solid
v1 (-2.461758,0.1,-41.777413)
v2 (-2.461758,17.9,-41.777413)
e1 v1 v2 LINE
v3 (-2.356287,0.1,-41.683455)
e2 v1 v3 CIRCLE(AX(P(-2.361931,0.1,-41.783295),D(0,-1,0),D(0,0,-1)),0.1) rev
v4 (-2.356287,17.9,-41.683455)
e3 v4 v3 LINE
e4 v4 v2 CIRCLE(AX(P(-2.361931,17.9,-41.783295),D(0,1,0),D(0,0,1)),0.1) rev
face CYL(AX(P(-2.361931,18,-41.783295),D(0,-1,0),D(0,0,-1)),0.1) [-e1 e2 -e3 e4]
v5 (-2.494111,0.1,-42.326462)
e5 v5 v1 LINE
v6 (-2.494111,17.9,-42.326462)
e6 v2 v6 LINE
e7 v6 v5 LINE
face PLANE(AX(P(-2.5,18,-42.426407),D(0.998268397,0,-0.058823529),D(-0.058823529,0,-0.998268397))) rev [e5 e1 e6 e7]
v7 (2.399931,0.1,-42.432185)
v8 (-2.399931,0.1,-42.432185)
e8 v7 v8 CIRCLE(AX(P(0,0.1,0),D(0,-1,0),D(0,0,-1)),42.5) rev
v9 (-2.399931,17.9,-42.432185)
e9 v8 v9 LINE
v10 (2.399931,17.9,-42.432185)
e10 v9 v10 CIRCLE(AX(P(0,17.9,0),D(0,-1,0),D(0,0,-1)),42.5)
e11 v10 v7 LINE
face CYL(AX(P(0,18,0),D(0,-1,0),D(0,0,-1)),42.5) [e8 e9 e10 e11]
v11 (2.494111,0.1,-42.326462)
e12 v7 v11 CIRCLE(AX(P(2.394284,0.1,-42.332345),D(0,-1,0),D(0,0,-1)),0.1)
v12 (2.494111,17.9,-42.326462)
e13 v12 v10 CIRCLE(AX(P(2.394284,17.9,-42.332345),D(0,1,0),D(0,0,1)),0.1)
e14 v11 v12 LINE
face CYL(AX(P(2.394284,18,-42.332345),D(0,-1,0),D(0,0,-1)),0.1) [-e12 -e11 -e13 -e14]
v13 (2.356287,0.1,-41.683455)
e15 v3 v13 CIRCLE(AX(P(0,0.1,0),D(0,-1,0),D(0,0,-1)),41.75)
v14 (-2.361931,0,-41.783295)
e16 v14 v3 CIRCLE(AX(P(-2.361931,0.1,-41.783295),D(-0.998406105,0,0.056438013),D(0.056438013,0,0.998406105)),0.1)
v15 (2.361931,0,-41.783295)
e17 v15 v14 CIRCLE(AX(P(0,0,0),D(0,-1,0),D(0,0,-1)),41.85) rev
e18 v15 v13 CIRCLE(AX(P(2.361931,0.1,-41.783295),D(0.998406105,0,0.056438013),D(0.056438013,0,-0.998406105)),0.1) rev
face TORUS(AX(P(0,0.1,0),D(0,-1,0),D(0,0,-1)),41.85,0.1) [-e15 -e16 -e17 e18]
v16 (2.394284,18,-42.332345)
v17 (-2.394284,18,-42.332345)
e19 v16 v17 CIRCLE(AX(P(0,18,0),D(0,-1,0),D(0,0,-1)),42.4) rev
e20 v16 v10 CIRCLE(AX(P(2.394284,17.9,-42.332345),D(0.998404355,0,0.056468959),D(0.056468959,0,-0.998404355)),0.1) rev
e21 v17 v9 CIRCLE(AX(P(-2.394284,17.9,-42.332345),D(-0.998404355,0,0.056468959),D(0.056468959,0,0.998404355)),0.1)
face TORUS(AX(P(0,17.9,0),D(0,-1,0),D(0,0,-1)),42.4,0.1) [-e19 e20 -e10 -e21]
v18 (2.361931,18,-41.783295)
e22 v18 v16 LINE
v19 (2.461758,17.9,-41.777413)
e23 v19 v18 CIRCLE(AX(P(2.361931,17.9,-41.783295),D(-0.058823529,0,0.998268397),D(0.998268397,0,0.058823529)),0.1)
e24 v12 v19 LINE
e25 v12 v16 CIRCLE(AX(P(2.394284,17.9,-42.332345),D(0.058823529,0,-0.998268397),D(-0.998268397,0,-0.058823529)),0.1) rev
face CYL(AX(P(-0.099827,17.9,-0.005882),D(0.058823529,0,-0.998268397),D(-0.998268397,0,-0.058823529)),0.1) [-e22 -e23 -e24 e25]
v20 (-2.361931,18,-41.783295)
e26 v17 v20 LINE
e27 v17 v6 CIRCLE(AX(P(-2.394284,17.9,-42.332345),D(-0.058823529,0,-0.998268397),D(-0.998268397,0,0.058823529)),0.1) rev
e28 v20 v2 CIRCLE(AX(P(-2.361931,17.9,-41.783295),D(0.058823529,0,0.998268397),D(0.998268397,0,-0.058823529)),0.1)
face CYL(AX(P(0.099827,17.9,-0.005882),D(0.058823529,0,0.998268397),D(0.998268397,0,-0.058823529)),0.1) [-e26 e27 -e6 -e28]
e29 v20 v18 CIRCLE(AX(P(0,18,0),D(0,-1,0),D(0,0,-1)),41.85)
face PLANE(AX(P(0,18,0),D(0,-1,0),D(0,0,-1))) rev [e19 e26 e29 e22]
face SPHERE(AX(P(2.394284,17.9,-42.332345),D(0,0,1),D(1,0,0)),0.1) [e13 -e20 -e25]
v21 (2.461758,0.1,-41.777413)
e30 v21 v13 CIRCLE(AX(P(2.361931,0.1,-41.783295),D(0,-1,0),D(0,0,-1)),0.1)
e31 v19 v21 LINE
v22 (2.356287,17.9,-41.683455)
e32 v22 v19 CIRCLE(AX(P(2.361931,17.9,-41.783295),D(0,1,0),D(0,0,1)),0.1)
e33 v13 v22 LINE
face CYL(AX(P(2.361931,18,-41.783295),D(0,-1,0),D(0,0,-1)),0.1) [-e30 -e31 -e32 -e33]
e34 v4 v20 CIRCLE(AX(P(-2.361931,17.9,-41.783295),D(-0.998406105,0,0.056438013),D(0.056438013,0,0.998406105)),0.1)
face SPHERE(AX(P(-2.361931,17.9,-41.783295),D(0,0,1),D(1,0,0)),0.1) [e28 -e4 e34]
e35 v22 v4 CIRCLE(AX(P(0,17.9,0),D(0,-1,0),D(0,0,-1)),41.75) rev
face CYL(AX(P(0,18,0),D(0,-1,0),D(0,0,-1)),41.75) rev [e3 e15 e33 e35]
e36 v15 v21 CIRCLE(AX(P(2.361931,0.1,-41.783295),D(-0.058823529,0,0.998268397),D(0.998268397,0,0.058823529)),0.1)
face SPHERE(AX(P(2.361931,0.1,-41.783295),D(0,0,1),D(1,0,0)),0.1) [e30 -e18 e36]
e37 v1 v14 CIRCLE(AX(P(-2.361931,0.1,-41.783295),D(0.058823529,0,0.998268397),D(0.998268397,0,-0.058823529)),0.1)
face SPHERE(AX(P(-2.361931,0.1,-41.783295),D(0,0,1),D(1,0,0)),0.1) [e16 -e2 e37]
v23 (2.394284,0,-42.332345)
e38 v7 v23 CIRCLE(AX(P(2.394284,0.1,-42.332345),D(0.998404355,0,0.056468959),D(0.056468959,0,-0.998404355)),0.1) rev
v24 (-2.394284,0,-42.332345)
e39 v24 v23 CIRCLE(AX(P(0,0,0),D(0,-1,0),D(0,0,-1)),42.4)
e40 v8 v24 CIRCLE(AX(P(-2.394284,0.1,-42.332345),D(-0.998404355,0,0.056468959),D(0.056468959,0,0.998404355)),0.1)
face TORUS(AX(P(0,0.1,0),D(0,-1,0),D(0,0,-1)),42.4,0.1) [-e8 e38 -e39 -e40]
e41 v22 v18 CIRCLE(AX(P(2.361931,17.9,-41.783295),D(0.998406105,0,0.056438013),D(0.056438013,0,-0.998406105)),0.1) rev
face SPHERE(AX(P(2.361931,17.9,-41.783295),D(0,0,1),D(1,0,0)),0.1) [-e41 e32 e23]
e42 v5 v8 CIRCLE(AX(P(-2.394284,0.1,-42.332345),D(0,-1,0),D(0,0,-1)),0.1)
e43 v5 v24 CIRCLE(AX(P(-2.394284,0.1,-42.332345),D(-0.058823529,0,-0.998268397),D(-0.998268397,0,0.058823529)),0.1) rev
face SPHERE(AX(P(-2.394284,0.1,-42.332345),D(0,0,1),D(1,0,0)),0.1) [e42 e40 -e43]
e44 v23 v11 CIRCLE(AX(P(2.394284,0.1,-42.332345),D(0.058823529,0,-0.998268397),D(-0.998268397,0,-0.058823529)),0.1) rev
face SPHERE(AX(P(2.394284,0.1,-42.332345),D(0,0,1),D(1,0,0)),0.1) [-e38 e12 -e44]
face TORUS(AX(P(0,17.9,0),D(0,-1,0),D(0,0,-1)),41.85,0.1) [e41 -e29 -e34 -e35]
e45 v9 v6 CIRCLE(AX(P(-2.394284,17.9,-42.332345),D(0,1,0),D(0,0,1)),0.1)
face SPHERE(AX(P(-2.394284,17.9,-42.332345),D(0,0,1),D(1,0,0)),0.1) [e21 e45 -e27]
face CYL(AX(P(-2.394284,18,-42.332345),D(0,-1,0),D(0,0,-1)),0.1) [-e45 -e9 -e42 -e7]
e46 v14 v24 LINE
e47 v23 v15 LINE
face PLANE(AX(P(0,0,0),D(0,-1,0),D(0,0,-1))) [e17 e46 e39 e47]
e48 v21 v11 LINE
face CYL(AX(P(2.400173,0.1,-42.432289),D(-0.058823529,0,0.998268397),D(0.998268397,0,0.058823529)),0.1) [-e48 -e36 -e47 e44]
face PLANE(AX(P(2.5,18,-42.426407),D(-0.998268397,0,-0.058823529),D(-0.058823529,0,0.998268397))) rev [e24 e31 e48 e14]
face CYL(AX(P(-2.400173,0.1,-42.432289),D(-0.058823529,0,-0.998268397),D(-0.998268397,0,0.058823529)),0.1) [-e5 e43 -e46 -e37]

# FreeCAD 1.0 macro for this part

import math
import FreeCAD as App
import Part
import Sketcher
from FreeCAD import Vector
Q = App.Units.Quantity

doc = App.newDocument("Part")
body = doc.addObject("PartDesign::Body", "Body")

# Sketch on XZ plane
sketch1 = body.newObject("Sketcher::SketchObject", "Sketch")
sketch1.AttachmentSupport = (doc.getObject("XZ_Plane"), [""])
sketch1.MapMode = "FlatFace"
sketch1.addGeometry([
    Part.LineSegment(Vector(-2.5, -42.4, 0), Vector(-2.5, -41.7, 0)),
    Part.ArcOfCircle(Part.Circle(Vector(0, 0, 0), Vector(0, 0, 1), 41.7), math.radians(-93.37), math.radians(-86.63)),
    Part.LineSegment(Vector(2.5, -41.7, 0), Vector(2.5, -42.4, 0)),
    Part.ArcOfCircle(Part.Circle(Vector(0, 0, 0), Vector(0, 0, 1), 42.5), math.radians(-93.37), math.radians(-86.63)),
], False)
sketch1.addConstraint([
    Sketcher.Constraint("Coincident", 0, 2, 1, 1),
    Sketcher.Constraint("Coincident", 1, 2, 2, 1),
    Sketcher.Constraint("Coincident", 2, 2, 3, 2),
    Sketcher.Constraint("Coincident", 3, 1, 0, 1),
    Sketcher.Constraint("Coincident", 1, 3, -1, 1),
    Sketcher.Constraint("Coincident", 3, 3, -1, 1),
    Sketcher.Constraint("Horizontal", 0, 2, 1, 2),
    Sketcher.Constraint("Horizontal", 2, 2, 3, 1),
    Sketcher.Constraint("Radius", 3, Q("42.5 mm")),
    Sketcher.Constraint("Radius", 1, Q("41.75 mm")),
    Sketcher.Constraint("DistanceX", 3, 1, 2, 2, Q("5 mm")),
    Sketcher.Constraint("DistanceY", 2, 2, 1, 2, Q("0.748701 mm")),
])
pad1 = body.newObject("PartDesign::Pad", "Pad")
pad1.Profile = sketch1
pad1.Length = 18
pad1.Reversed = True
doc.recompute()

fillet = body.newObject("PartDesign::Fillet", "Fillet")
fillet.Base = (pad1, ["Edge1"])
fillet.UseAllEdges = True
fillet.Radius = 0.1

doc.recompute()
